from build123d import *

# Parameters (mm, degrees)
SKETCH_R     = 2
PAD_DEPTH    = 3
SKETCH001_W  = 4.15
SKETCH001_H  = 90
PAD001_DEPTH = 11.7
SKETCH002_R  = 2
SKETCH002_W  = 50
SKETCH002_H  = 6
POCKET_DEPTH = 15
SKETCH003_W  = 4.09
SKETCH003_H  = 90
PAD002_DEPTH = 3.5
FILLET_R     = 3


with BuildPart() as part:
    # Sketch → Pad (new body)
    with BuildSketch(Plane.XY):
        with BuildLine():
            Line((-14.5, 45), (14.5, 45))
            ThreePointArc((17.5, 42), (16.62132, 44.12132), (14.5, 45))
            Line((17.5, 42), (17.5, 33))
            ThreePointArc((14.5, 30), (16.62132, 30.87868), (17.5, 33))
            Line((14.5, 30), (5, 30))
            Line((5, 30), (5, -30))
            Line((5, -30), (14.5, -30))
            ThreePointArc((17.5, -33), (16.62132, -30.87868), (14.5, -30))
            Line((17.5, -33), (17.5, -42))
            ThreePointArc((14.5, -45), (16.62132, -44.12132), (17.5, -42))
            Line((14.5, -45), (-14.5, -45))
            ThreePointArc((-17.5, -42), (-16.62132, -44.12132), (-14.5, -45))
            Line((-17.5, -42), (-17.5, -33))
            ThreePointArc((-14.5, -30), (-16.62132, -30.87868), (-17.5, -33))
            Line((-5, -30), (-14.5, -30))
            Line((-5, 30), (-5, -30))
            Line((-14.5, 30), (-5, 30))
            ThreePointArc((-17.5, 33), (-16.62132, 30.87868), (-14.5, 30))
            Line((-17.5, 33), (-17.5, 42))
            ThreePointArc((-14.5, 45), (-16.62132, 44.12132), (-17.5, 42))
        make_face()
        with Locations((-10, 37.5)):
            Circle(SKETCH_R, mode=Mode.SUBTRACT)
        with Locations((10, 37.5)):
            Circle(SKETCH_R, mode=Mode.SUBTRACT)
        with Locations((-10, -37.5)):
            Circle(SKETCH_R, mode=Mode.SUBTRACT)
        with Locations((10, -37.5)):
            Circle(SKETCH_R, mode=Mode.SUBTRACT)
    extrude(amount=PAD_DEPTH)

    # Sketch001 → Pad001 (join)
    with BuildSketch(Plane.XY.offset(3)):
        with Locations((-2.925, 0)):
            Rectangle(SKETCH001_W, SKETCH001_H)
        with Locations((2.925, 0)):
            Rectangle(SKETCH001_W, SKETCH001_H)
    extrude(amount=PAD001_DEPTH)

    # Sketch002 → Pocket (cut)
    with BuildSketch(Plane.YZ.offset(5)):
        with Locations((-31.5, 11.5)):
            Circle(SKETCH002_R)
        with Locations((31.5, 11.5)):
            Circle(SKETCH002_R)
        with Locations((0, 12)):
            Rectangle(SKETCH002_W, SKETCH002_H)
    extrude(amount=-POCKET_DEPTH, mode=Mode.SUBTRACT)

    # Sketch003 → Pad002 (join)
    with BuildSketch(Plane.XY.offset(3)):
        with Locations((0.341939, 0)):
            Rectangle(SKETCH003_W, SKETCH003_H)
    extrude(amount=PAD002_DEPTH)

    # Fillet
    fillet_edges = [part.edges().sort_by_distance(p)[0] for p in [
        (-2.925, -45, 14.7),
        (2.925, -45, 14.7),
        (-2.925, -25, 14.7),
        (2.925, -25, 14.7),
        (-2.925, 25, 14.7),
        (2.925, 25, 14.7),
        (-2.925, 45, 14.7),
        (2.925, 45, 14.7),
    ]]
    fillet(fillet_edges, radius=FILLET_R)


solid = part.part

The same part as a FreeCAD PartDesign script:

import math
import FreeCAD as App
import Part
import Sketcher
from FreeCAD import Vector
Q = App.Units.Quantity


def edges_at(feature, points):
    """Names of the edges that pass closest to the given points."""
    edges = feature.Shape.Edges
    near = lambda p: min(range(len(edges)), key=lambda i: edges[i].distToShape(Part.Vertex(*p))[0])
    return sorted({f"Edge{near(p) + 1}" for p in points})

doc = App.newDocument("Part")
params = doc.addObject("Spreadsheet::Sheet", "Params")
for row, (alias, value) in enumerate([
    ("sketch1_diameter", "4 mm"),
    ("sketch1_radius", "3.000001 mm"),
    ("sketch1_width", "29 mm"),
    ("sketch1_height", "9 mm"),
    ("sketch1_height2", "60 mm"),
    ("pad1_length", "3 mm"),
    ("sketch2_height", "90 mm"),
    ("sketch2_width", "4.15 mm"),
    ("pad2_length", "11.7 mm"),
    ("sketch3_diameter", "4 mm"),
    ("sketch3_width", "50 mm"),
    ("sketch3_height", "6 mm"),
    ("pocket1_length", "15 mm"),
    ("sketch4_height", "90 mm"),
    ("sketch4_width", "4.09 mm"),
    ("pad3_length", "3.5 mm"),
    ("fillet_radius", "3 mm"),
], start=1):
    params.set(f"A{row}", alias)
    params.set(f"B{row}", "=" + value)
    params.setAlias(f"B{row}", alias)

body = doc.addObject("PartDesign::Body", "Body")

sketch1 = doc.addObject("Sketcher::SketchObject", "Sketch")
body.addObject(sketch1)
sketch1.AttachmentSupport = (doc.XY_Plane, [""])
sketch1.MapMode = "FlatFace"
sketch1.addGeometry([
    Part.LineSegment(Vector(14.5, 45, 0), Vector(-14.5, 45, 0)),
    Part.ArcOfCircle(Part.Circle(Vector(-14.5, 42, 0), Vector(0, 0, 1), 3), math.radians(90), math.radians(180)),
    Part.LineSegment(Vector(-17.5, 42, 0), Vector(-17.5, 33, 0)),
    Part.ArcOfCircle(Part.Circle(Vector(-14.5, 33, 0), Vector(0, 0, 1), 3), math.radians(-180), math.radians(-90)),
    Part.LineSegment(Vector(-14.5, 30, 0), Vector(-5, 30, 0)),
    Part.LineSegment(Vector(-5, 30, 0), Vector(-5, -30, 0)),
    Part.LineSegment(Vector(-5, -30, 0), Vector(-14.5, -30, 0)),
    Part.ArcOfCircle(Part.Circle(Vector(-14.5, -33, 0), Vector(0, 0, 1), 3), math.radians(90), math.radians(180)),
    Part.LineSegment(Vector(-17.5, -33, 0), Vector(-17.5, -42, 0)),
    Part.ArcOfCircle(Part.Circle(Vector(-14.5, -42, 0), Vector(0, 0, 1), 3), math.radians(-180), math.radians(-90)),
    Part.LineSegment(Vector(-14.5, -45, 0), Vector(14.5, -45, 0)),
    Part.ArcOfCircle(Part.Circle(Vector(14.5, -42, 0), Vector(0, 0, 1), 3), math.radians(-90), math.radians(0)),
    Part.LineSegment(Vector(17.5, -42, 0), Vector(17.5, -33, 0)),
    Part.ArcOfCircle(Part.Circle(Vector(14.5, -33, 0), Vector(0, 0, 1), 3), math.radians(0), math.radians(90)),
    Part.LineSegment(Vector(14.5, -30, 0), Vector(5, -30, 0)),
    Part.LineSegment(Vector(5, -30, 0), Vector(5, 30, 0)),
    Part.LineSegment(Vector(5, 30, 0), Vector(14.5, 30, 0)),
    Part.ArcOfCircle(Part.Circle(Vector(14.5, 33, 0), Vector(0, 0, 1), 3), math.radians(-90), math.radians(0)),
    Part.LineSegment(Vector(17.5, 33, 0), Vector(17.5, 42, 0)),
    Part.ArcOfCircle(Part.Circle(Vector(14.5, 42, 0), Vector(0, 0, 1), 3), math.radians(0), math.radians(90)),
    Part.Circle(Vector(10, -37.5, 0), Vector(0, 0, 1), 2),
    Part.Circle(Vector(-10, -37.5, 0), Vector(0, 0, 1), 2),
    Part.Circle(Vector(10, 37.5, 0), Vector(0, 0, 1), 2),
    Part.Circle(Vector(-10, 37.5, 0), Vector(0, 0, 1), 2),
], False)
sketch1.addConstraint([
    Sketcher.Constraint("Tangent", 0, 2, 1, 1),
    Sketcher.Constraint("Tangent", 1, 2, 2, 1),
    Sketcher.Constraint("Tangent", 2, 2, 3, 1),
    Sketcher.Constraint("Tangent", 3, 2, 4, 1),
    Sketcher.Constraint("Coincident", 4, 2, 5, 1),
    Sketcher.Constraint("Coincident", 5, 2, 6, 1),
    Sketcher.Constraint("Tangent", 6, 2, 7, 1),
    Sketcher.Constraint("Tangent", 7, 2, 8, 1),
    Sketcher.Constraint("Tangent", 8, 2, 9, 1),
    Sketcher.Constraint("Tangent", 9, 2, 10, 1),
    Sketcher.Constraint("Tangent", 10, 2, 11, 1),
    Sketcher.Constraint("Tangent", 11, 2, 12, 1),
    Sketcher.Constraint("Tangent", 12, 2, 13, 1),
    Sketcher.Constraint("Tangent", 13, 2, 14, 1),
    Sketcher.Constraint("Coincident", 14, 2, 15, 1),
    Sketcher.Constraint("Coincident", 15, 2, 16, 1),
    Sketcher.Constraint("Tangent", 16, 2, 17, 1),
    Sketcher.Constraint("Tangent", 17, 2, 18, 1),
    Sketcher.Constraint("Tangent", 18, 2, 19, 1),
    Sketcher.Constraint("Tangent", 19, 2, 0, 1),
    Sketcher.Constraint("Horizontal", 0),
    Sketcher.Constraint("Vertical", 2),
    Sketcher.Constraint("Horizontal", 4),
    Sketcher.Constraint("Vertical", 5),
    Sketcher.Constraint("Horizontal", 6),
    Sketcher.Constraint("Vertical", 8),
    Sketcher.Constraint("Horizontal", 10),
    Sketcher.Constraint("Vertical", 12),
    Sketcher.Constraint("Horizontal", 14),
    Sketcher.Constraint("Vertical", 15),
    Sketcher.Constraint("Horizontal", 16),
    Sketcher.Constraint("Vertical", 18),
    Sketcher.Constraint("Equal", 1, 3),
    Sketcher.Constraint("Equal", 3, 7),
    Sketcher.Constraint("Equal", 7, 9),
    Sketcher.Constraint("Equal", 9, 11),
    Sketcher.Constraint("Equal", 11, 13),
    Sketcher.Constraint("Equal", 13, 17),
    Sketcher.Constraint("Equal", 17, 19),
    Sketcher.Constraint("Equal", 20, 21),
    Sketcher.Constraint("Equal", 21, 22),
    Sketcher.Constraint("Equal", 22, 23),
    Sketcher.Constraint("Symmetric", 1, 3, 11, 3, -1, 1),
    Sketcher.Constraint("Symmetric", 7, 3, 17, 3, -1, 1),
    Sketcher.Constraint("Symmetric", 21, 3, 22, 3, -1, 1),
    Sketcher.Constraint("Symmetric", 20, 3, 23, 3, -1, 1),
    Sketcher.Constraint("Symmetric", 4, 2, 14, 2, -1, 1),
    Sketcher.Constraint("Symmetric", 7, 3, 13, 3, -2),
    Sketcher.Constraint("Symmetric", 20, 3, 21, 3, -2),
    Sketcher.Constraint("Diameter", 20, Q("4 mm")),
    Sketcher.Constraint("Radius", 1, Q("3.000001 mm")),
    Sketcher.Constraint("DistanceX", 0, 2, 0, 1, Q("29 mm")),
    Sketcher.Constraint("DistanceY", 2, 2, 2, 1, Q("9 mm")),
    Sketcher.Constraint("DistanceY", 5, 2, 5, 1, Q("60 mm")),
    Sketcher.Constraint("DistanceX", 4, 1, 4, 2, Q("9.5 mm")),
    Sketcher.Constraint("DistanceX", -1, 1, 20, 3, Q("10 mm")),
    Sketcher.Constraint("DistanceY", 20, 3, -1, 1, Q("37.5 mm")),
])
sketch1.setExpression("Constraints[49]", "Params.sketch1_diameter")
sketch1.setExpression("Constraints[50]", "Params.sketch1_radius")
sketch1.setExpression("Constraints[51]", "Params.sketch1_width")
sketch1.setExpression("Constraints[52]", "Params.sketch1_height")
sketch1.setExpression("Constraints[53]", "Params.sketch1_height2")
pad1 = doc.addObject("PartDesign::Pad", "Pad")
body.addObject(pad1)
pad1.Profile = sketch1
pad1.setExpression("Length", "Params.pad1_length")

sketch2 = doc.addObject("Sketcher::SketchObject", "Sketch001")
body.addObject(sketch2)
sketch2.AttachmentSupport = (doc.XY_Plane, [""])
sketch2.MapMode = "FlatFace"
sketch2.AttachmentOffset = App.Placement(Vector(0, 0, 3), App.Rotation())
sketch2.addGeometry([
    Part.LineSegment(Vector(-5, 45, 0), Vector(-5, -45, 0)),
    Part.LineSegment(Vector(-5, -45, 0), Vector(-0.8, -45, 0)),
    Part.LineSegment(Vector(-0.8, -45, 0), Vector(-0.8, 45, 0)),
    Part.LineSegment(Vector(-0.8, 45, 0), Vector(-5, 45, 0)),
    Part.LineSegment(Vector(0.8, 45, 0), Vector(0.8, -45, 0)),
    Part.LineSegment(Vector(0.8, -45, 0), Vector(5, -45, 0)),
    Part.LineSegment(Vector(5, -45, 0), Vector(5, 45, 0)),
    Part.LineSegment(Vector(5, 45, 0), Vector(0.8, 45, 0)),
], False)
sketch2.addConstraint([
    Sketcher.Constraint("Coincident", 0, 2, 1, 1),
    Sketcher.Constraint("Coincident", 1, 2, 2, 1),
    Sketcher.Constraint("Coincident", 2, 2, 3, 1),
    Sketcher.Constraint("Coincident", 3, 2, 0, 1),
    Sketcher.Constraint("Coincident", 4, 2, 5, 1),
    Sketcher.Constraint("Coincident", 5, 2, 6, 1),
    Sketcher.Constraint("Coincident", 6, 2, 7, 1),
    Sketcher.Constraint("Coincident", 7, 2, 4, 1),
    Sketcher.Constraint("Vertical", 0),
    Sketcher.Constraint("Horizontal", 1),
    Sketcher.Constraint("Vertical", 2),
    Sketcher.Constraint("Horizontal", 3),
    Sketcher.Constraint("Vertical", 4),
    Sketcher.Constraint("Horizontal", 5),
    Sketcher.Constraint("Vertical", 6),
    Sketcher.Constraint("Horizontal", 7),
    Sketcher.Constraint("Symmetric", 2, 2, 4, 2, -1, 1),
    Sketcher.Constraint("Symmetric", 0, 2, 6, 2, -1, 1),
    Sketcher.Constraint("Horizontal", 1, 2, 4, 2),
    Sketcher.Constraint("DistanceY", 0, 2, 0, 1, Q("90 mm")),
    Sketcher.Constraint("DistanceX", 0, 2, -1, 1, Q("5 mm")),
    Sketcher.Constraint("DistanceX", 1, 1, 1, 2, Q("4.15 mm")),
])
sketch2.setExpression("Constraints[19]", "Params.sketch2_height")
sketch2.setExpression("Constraints[21]", "Params.sketch2_width")
pad2 = doc.addObject("PartDesign::Pad", "Pad001")
body.addObject(pad2)
pad2.Profile = sketch2
pad2.setExpression("Length", "Params.pad2_length")

sketch3 = doc.addObject("Sketcher::SketchObject", "Sketch002")
body.addObject(sketch3)
sketch3.AttachmentSupport = (doc.YZ_Plane, [""])
sketch3.MapMode = "FlatFace"
sketch3.AttachmentOffset = App.Placement(Vector(0, 0, 5), App.Rotation())
sketch3.addGeometry([
    Part.Circle(Vector(-31.5, 11.5, 0), Vector(0, 0, 1), 2),
    Part.Circle(Vector(31.5, 11.5, 0), Vector(0, 0, 1), 2),
    Part.LineSegment(Vector(-25, 15, 0), Vector(-25, 9, 0)),
    Part.LineSegment(Vector(-25, 9, 0), Vector(25, 9, 0)),
    Part.LineSegment(Vector(25, 9, 0), Vector(25, 15, 0)),
    Part.LineSegment(Vector(25, 15, 0), Vector(-25, 15, 0)),
], False)
sketch3.addConstraint([
    Sketcher.Constraint("Coincident", 2, 2, 3, 1),
    Sketcher.Constraint("Coincident", 3, 2, 4, 1),
    Sketcher.Constraint("Coincident", 4, 2, 5, 1),
    Sketcher.Constraint("Coincident", 5, 2, 2, 1),
    Sketcher.Constraint("Vertical", 2),
    Sketcher.Constraint("Horizontal", 3),
    Sketcher.Constraint("Vertical", 4),
    Sketcher.Constraint("Horizontal", 5),
    Sketcher.Constraint("Equal", 0, 1),
    Sketcher.Constraint("Symmetric", 0, 3, 1, 3, -2),
    Sketcher.Constraint("Diameter", 0, Q("4 mm")),
    Sketcher.Constraint("DistanceX", 3, 1, 3, 2, Q("50 mm")),
    Sketcher.Constraint("DistanceY", 2, 2, 2, 1, Q("6 mm")),
    Sketcher.Constraint("DistanceX", 2, 2, -1, 1, Q("25 mm")),
    Sketcher.Constraint("DistanceY", -1, 1, 2, 2, Q("9 mm")),
    Sketcher.Constraint("DistanceX", 0, 3, 1, 3, Q("63 mm")),
    Sketcher.Constraint("DistanceY", -1, 1, 0, 3, Q("11.5 mm")),
])
sketch3.setExpression("Constraints[10]", "Params.sketch3_diameter")
sketch3.setExpression("Constraints[11]", "Params.sketch3_width")
sketch3.setExpression("Constraints[12]", "Params.sketch3_height")
pocket1 = doc.addObject("PartDesign::Pocket", "Pocket")
body.addObject(pocket1)
pocket1.Profile = sketch3
pocket1.setExpression("Length", "Params.pocket1_length")

sketch4 = doc.addObject("Sketcher::SketchObject", "Sketch003")
body.addObject(sketch4)
sketch4.AttachmentSupport = (doc.XY_Plane, [""])
sketch4.MapMode = "FlatFace"
sketch4.AttachmentOffset = App.Placement(Vector(0, 0, 3), App.Rotation())
sketch4.addGeometry([
    Part.LineSegment(Vector(-1.7, 45, 0), Vector(-1.7, -45, 0)),
    Part.LineSegment(Vector(-1.7, -45, 0), Vector(2.4, -45, 0)),
    Part.LineSegment(Vector(2.4, -45, 0), Vector(2.4, 45, 0)),
    Part.LineSegment(Vector(2.4, 45, 0), Vector(-1.7, 45, 0)),
], False)
sketch4.addConstraint([
    Sketcher.Constraint("Coincident", 0, 2, 1, 1),
    Sketcher.Constraint("Coincident", 1, 2, 2, 1),
    Sketcher.Constraint("Coincident", 2, 2, 3, 1),
    Sketcher.Constraint("Coincident", 3, 2, 0, 1),
    Sketcher.Constraint("Vertical", 0),
    Sketcher.Constraint("Horizontal", 1),
    Sketcher.Constraint("Vertical", 2),
    Sketcher.Constraint("Horizontal", 3),
    Sketcher.Constraint("DistanceY", 0, 2, 0, 1, Q("90 mm")),
    Sketcher.Constraint("DistanceY", 0, 2, -1, 1, Q("45 mm")),
    Sketcher.Constraint("DistanceX", 1, 1, 1, 2, Q("4.09 mm")),
    Sketcher.Constraint("DistanceX", 0, 2, -1, 1, Q("1.703061 mm")),
])
sketch4.setExpression("Constraints[8]", "Params.sketch4_height")
sketch4.setExpression("Constraints[10]", "Params.sketch4_width")
pad3 = doc.addObject("PartDesign::Pad", "Pad002")
body.addObject(pad3)
pad3.Profile = sketch4
pad3.setExpression("Length", "Params.pad3_length")
doc.recompute()

fillet = doc.addObject("PartDesign::Fillet", "Fillet")
body.addObject(fillet)
fillet.Base = (pad3, edges_at(pad3, [
    (-2.925, -45, 14.7),
    (2.925, -45, 14.7),
    (-2.925, -25, 14.7),
    (2.925, -25, 14.7),
    (-2.925, 25, 14.7),
    (2.925, 25, 14.7),
    (-2.925, 45, 14.7),
    (2.925, 45, 14.7),
]))
fillet.setExpression("Radius", "Params.fillet_radius")

doc.recompute()
